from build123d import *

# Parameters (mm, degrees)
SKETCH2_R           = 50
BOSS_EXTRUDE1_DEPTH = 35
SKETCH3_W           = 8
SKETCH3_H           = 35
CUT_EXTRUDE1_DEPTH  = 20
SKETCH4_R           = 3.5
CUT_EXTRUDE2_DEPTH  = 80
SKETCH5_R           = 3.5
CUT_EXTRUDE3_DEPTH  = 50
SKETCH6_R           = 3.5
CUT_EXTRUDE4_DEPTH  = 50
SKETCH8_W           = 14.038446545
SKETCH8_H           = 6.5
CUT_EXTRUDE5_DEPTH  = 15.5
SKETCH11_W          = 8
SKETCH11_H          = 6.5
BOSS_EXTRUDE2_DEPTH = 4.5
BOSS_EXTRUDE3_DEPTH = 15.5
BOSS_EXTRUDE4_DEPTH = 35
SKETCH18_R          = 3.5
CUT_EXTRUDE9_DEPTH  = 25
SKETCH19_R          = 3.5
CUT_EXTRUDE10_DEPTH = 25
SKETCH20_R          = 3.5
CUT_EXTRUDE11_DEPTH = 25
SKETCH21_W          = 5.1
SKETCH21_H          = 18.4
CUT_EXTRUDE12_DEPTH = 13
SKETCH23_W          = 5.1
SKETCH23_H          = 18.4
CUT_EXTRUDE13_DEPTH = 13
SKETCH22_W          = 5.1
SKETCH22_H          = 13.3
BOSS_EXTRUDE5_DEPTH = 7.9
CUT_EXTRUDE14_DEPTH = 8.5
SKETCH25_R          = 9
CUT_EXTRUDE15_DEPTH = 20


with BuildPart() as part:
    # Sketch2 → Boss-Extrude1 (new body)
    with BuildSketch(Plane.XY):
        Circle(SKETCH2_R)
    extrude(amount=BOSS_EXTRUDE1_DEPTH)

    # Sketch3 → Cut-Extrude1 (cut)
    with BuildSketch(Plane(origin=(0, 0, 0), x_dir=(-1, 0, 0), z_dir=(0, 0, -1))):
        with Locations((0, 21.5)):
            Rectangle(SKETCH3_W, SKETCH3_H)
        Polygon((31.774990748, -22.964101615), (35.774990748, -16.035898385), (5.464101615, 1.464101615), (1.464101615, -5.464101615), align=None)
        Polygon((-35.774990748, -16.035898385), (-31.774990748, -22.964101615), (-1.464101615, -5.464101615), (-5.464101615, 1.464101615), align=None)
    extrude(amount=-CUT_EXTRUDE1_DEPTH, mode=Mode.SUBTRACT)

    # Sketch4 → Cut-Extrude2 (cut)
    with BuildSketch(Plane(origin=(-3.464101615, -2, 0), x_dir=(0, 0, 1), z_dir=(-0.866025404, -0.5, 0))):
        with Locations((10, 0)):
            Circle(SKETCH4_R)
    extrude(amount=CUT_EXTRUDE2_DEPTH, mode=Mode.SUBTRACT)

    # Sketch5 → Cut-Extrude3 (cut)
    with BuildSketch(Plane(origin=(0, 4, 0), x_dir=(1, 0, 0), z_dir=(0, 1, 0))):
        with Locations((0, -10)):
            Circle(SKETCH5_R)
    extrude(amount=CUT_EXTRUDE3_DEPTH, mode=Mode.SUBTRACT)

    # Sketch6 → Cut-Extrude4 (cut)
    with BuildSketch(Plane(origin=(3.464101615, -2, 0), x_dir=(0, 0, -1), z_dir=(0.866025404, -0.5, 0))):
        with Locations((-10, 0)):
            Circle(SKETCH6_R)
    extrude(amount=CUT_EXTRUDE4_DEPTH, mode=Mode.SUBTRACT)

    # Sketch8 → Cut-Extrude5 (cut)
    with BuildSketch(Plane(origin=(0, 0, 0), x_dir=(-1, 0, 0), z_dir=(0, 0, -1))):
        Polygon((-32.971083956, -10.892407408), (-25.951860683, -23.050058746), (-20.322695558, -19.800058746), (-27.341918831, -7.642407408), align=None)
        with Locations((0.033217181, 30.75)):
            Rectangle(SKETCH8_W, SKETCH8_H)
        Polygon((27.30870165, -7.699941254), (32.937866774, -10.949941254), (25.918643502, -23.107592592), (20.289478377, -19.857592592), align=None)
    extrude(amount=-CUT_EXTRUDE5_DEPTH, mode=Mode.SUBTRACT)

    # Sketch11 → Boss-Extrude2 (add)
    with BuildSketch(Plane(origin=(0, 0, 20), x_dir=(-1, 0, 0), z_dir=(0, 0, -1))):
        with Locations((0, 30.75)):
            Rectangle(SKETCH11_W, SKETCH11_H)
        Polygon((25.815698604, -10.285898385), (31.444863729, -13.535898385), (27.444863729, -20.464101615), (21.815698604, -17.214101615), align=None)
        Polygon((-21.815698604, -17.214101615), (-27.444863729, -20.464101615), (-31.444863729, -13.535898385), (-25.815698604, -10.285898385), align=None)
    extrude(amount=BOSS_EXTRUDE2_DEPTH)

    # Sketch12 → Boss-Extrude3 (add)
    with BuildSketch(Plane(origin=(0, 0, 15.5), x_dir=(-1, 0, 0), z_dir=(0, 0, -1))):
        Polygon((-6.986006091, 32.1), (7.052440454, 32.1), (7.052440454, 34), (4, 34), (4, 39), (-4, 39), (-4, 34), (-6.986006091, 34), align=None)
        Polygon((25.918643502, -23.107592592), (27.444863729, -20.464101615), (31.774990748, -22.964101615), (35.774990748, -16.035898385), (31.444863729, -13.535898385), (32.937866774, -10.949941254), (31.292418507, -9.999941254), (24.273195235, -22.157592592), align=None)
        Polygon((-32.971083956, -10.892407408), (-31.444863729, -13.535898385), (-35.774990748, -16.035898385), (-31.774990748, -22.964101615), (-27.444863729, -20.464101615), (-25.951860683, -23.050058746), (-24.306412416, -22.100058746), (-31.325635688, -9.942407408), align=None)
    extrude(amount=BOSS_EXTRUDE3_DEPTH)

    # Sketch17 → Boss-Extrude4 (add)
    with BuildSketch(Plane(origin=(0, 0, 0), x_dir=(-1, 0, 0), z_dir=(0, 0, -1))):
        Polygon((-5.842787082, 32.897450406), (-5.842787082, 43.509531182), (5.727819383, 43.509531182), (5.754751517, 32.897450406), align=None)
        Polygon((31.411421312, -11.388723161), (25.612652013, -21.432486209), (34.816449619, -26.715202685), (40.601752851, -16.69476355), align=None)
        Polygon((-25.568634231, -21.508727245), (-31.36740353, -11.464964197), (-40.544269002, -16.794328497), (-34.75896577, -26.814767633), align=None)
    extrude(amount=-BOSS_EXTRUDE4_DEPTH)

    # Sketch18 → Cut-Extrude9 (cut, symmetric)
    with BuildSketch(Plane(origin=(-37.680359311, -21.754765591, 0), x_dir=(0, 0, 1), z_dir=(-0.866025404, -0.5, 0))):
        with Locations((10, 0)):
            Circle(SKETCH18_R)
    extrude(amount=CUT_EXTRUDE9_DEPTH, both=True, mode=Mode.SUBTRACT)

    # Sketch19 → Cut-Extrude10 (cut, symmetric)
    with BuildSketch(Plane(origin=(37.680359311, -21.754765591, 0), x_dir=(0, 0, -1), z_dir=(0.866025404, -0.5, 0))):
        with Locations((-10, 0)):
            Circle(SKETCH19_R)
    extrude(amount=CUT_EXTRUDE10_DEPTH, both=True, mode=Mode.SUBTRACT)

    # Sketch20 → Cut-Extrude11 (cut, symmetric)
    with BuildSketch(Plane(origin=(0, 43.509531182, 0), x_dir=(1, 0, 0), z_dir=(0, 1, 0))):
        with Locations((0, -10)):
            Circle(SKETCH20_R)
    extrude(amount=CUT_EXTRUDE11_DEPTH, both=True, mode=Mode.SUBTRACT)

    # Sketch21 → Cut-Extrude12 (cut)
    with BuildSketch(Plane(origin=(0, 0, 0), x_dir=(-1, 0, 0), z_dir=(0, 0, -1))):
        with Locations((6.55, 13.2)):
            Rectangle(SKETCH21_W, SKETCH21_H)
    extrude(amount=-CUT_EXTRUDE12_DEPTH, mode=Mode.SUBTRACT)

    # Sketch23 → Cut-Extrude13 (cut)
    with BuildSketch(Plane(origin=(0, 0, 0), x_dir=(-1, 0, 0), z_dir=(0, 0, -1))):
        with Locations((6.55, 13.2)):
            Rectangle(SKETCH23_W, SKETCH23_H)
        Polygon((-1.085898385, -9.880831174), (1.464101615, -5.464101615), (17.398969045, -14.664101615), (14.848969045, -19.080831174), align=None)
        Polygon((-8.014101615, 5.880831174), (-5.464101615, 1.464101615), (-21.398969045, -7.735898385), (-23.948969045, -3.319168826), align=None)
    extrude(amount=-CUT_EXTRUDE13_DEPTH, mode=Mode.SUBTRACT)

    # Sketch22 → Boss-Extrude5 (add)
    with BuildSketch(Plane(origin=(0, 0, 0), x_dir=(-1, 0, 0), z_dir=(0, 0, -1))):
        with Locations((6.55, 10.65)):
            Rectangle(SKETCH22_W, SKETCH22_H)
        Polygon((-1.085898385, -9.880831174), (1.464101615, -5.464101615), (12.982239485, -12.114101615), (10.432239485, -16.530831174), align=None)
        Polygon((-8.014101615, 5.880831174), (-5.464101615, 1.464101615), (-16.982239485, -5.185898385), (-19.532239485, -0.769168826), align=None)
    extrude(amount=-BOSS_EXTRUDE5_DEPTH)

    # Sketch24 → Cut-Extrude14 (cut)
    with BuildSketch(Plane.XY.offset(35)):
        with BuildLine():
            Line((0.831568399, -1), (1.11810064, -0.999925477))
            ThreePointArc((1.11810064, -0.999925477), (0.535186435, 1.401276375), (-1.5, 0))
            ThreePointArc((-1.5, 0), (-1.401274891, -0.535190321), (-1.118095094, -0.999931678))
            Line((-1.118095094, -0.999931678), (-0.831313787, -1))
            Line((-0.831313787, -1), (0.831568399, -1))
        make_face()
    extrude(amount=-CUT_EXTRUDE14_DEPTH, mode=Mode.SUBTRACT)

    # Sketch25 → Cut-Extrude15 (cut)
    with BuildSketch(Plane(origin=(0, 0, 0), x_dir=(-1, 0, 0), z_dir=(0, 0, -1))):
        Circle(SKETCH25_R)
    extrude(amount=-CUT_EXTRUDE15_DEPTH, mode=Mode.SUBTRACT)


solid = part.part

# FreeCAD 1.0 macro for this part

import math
import FreeCAD as App
import Part
import Sketcher

V = App.Vector
Q = App.Units.Quantity

doc = App.newDocument("Part")
body = doc.addObject("PartDesign::Body", "Body")

# Sketch on XY plane
sketch1 = body.newObject("Sketcher::SketchObject", "Sketch")
sketch1.AttachmentSupport = (doc.getObject("XY_Plane"), [""])
sketch1.MapMode = "FlatFace"
sketch1.addGeometry(Part.Circle(V(0, 0, 0), V(0, 0, 1), 50), False)
sketch1.addConstraint(Sketcher.Constraint("Coincident", 0, 3, -1, 1))
sketch1.addConstraint(Sketcher.Constraint("Diameter", 0, Q("100 mm")))
pad1 = body.newObject("PartDesign::Pad", "Pad")
pad1.Profile = sketch1
pad1.Length = 35

# Sketch on XY plane
sketch2 = body.newObject("Sketcher::SketchObject", "Sketch001")
sketch2.AttachmentSupport = (doc.getObject("XY_Plane"), [""])
sketch2.MapMode = "FlatFace"
sketch2.addGeometry(Part.LineSegment(V(4, 39, 0), V(4, 4, 0)), False)
sketch2.addGeometry(Part.LineSegment(V(4, 4, 0), V(-4, 4, 0)), False)
sketch2.addGeometry(Part.LineSegment(V(-4, 4, 0), V(-4, 39, 0)), False)
sketch2.addGeometry(Part.LineSegment(V(-4, 39, 0), V(4, 39, 0)), False)
sketch2.addGeometry(Part.LineSegment(V(-32, -23, 0), V(-36, -16, 0)), False)
sketch2.addGeometry(Part.LineSegment(V(-36, -16, 0), V(-5, 1, 0)), False)
sketch2.addGeometry(Part.LineSegment(V(-5, 1, 0), V(-1, -5, 0)), False)
sketch2.addGeometry(Part.LineSegment(V(-1, -5, 0), V(-32, -23, 0)), False)
sketch2.addGeometry(Part.LineSegment(V(36, -16, 0), V(32, -23, 0)), False)
sketch2.addGeometry(Part.LineSegment(V(32, -23, 0), V(1, -5, 0)), False)
sketch2.addGeometry(Part.LineSegment(V(1, -5, 0), V(5, 1, 0)), False)
sketch2.addGeometry(Part.LineSegment(V(5, 1, 0), V(36, -16, 0)), False)
sketch2.addConstraint(Sketcher.Constraint("Coincident", 0, 2, 1, 1))
sketch2.addConstraint(Sketcher.Constraint("Coincident", 1, 2, 2, 1))
sketch2.addConstraint(Sketcher.Constraint("Coincident", 2, 2, 3, 1))
sketch2.addConstraint(Sketcher.Constraint("Coincident", 3, 2, 0, 1))
sketch2.addConstraint(Sketcher.Constraint("Coincident", 4, 2, 5, 1))
sketch2.addConstraint(Sketcher.Constraint("Coincident", 5, 2, 6, 1))
sketch2.addConstraint(Sketcher.Constraint("Coincident", 6, 2, 7, 1))
sketch2.addConstraint(Sketcher.Constraint("Coincident", 7, 2, 4, 1))
sketch2.addConstraint(Sketcher.Constraint("Coincident", 8, 2, 9, 1))
sketch2.addConstraint(Sketcher.Constraint("Coincident", 9, 2, 10, 1))
sketch2.addConstraint(Sketcher.Constraint("Coincident", 10, 2, 11, 1))
sketch2.addConstraint(Sketcher.Constraint("Coincident", 11, 2, 8, 1))
sketch2.addConstraint(Sketcher.Constraint("Vertical", 0))
sketch2.addConstraint(Sketcher.Constraint("Horizontal", 1))
sketch2.addConstraint(Sketcher.Constraint("Vertical", 2))
sketch2.addConstraint(Sketcher.Constraint("Horizontal", 3))
sketch2.addConstraint(Sketcher.Constraint("Symmetric", 7, 2, 8, 2, -2))
sketch2.addConstraint(Sketcher.Constraint("Symmetric", 6, 2, 9, 2, -2))
sketch2.addConstraint(Sketcher.Constraint("Symmetric", 5, 2, 10, 2, -2))
sketch2.addConstraint(Sketcher.Constraint("Symmetric", 4, 2, 11, 2, -2))
sketch2.addConstraint(Sketcher.Constraint("Perpendicular", 4, 5))
sketch2.addConstraint(Sketcher.Constraint("Perpendicular", 5, 6))
sketch2.addConstraint(Sketcher.Constraint("Perpendicular", 6, 7))
sketch2.addConstraint(Sketcher.Constraint("DistanceX", 1, 2, 1, 1, Q("8 mm")))
sketch2.addConstraint(Sketcher.Constraint("DistanceY", 0, 2, 0, 1, Q("35 mm")))
sketch2.addConstraint(Sketcher.Constraint("Angle", 4, Q("120 deg")))
sketch2.addConstraint(Sketcher.Constraint("Distance", 4, Q("8 mm")))
sketch2.addConstraint(Sketcher.Constraint("Distance", 5, Q("35 mm")))
sketch2.addConstraint(Sketcher.Constraint("DistanceX", -1, 1, 0, 2, Q("4 mm")))
sketch2.addConstraint(Sketcher.Constraint("DistanceY", -1, 1, 0, 2, Q("4 mm")))
sketch2.addConstraint(Sketcher.Constraint("DistanceY", 4, 2, -1, 1, Q("16.035898 mm")))
sketch2.addConstraint(Sketcher.Constraint("DistanceX", 5, 2, -1, 1, Q("5.464102 mm")))
pocket1 = body.newObject("PartDesign::Pocket", "Pocket")
pocket1.Profile = sketch2
pocket1.Length = 20
pocket1.Reversed = True

# Sketch on an angled plane
sketch3 = body.newObject("Sketcher::SketchObject", "Sketch002")
sketch3.Placement = App.Placement(V(-3.464102, -2, 0), App.Rotation(V(0, 0, 1), V(-0.5, 0.866025404, 0), V(-0.866025404, -0.5, 0), "ZXY"))
sketch3.addGeometry(Part.Circle(V(10, 0, 0), V(0, 0, 1), 3.5), False)
sketch3.addConstraint(Sketcher.Constraint("PointOnObject", 0, 3, -1))
sketch3.addConstraint(Sketcher.Constraint("Diameter", 0, Q("7 mm")))
sketch3.addConstraint(Sketcher.Constraint("DistanceX", -1, 1, 0, 3, Q("10 mm")))
pocket2 = body.newObject("PartDesign::Pocket", "Pocket001")
pocket2.Profile = sketch3
pocket2.Length = 80
pocket2.Reversed = True

# Sketch on XZ plane
sketch4 = body.newObject("Sketcher::SketchObject", "Sketch003")
sketch4.AttachmentSupport = (doc.getObject("XZ_Plane"), [""])
sketch4.MapMode = "FlatFace"
sketch4.AttachmentOffset = App.Placement(V(0, 0, -4), App.Rotation())
sketch4.addGeometry(Part.Circle(V(0, 10, 0), V(0, 0, 1), 3.5), False)
sketch4.addConstraint(Sketcher.Constraint("PointOnObject", 0, 3, -2))
sketch4.addConstraint(Sketcher.Constraint("Diameter", 0, Q("7 mm")))
sketch4.addConstraint(Sketcher.Constraint("DistanceY", -1, 1, 0, 3, Q("10 mm")))
pocket3 = body.newObject("PartDesign::Pocket", "Pocket002")
pocket3.Profile = sketch4
pocket3.Length = 50

# Sketch on an angled plane
sketch5 = body.newObject("Sketcher::SketchObject", "Sketch004")
sketch5.Placement = App.Placement(V(3.464102, -2, 0), App.Rotation(V(0, 0, -1), V(0.5, 0.866025404, 0), V(0.866025404, -0.5, 0), "ZXY"))
sketch5.addGeometry(Part.Circle(V(-10, 0, 0), V(0, 0, 1), 3.5), False)
sketch5.addConstraint(Sketcher.Constraint("PointOnObject", 0, 3, -1))
sketch5.addConstraint(Sketcher.Constraint("Diameter", 0, Q("7 mm")))
sketch5.addConstraint(Sketcher.Constraint("DistanceX", 0, 3, -1, 1, Q("10 mm")))
pocket4 = body.newObject("PartDesign::Pocket", "Pocket003")
pocket4.Profile = sketch5
pocket4.Length = 50
pocket4.Reversed = True

# Sketch on XY plane
sketch6 = body.newObject("Sketcher::SketchObject", "Sketch005")
sketch6.AttachmentSupport = (doc.getObject("XY_Plane"), [""])
sketch6.MapMode = "FlatFace"
sketch6.addGeometry(Part.LineSegment(V(33, -11, 0), V(26, -23, 0)), False)
sketch6.addGeometry(Part.LineSegment(V(26, -23, 0), V(20, -20, 0)), False)
sketch6.addGeometry(Part.LineSegment(V(20, -20, 0), V(27, -8, 0)), False)
sketch6.addGeometry(Part.LineSegment(V(27, -8, 0), V(33, -11, 0)), False)
sketch6.addGeometry(Part.LineSegment(V(7, 34, 0), V(7, 28, 0)), False)
sketch6.addGeometry(Part.LineSegment(V(7, 28, 0), V(-7, 28, 0)), False)
sketch6.addGeometry(Part.LineSegment(V(-7, 28, 0), V(-7, 34, 0)), False)
sketch6.addGeometry(Part.LineSegment(V(-7, 34, 0), V(7, 34, 0)), False)
sketch6.addGeometry(Part.LineSegment(V(-33, -11, 0), V(-27, -8, 0)), False)
sketch6.addGeometry(Part.LineSegment(V(-27, -8, 0), V(-20, -20, 0)), False)
sketch6.addGeometry(Part.LineSegment(V(-20, -20, 0), V(-26, -23, 0)), False)
sketch6.addGeometry(Part.LineSegment(V(-26, -23, 0), V(-33, -11, 0)), False)
sketch6.addConstraint(Sketcher.Constraint("Coincident", 0, 2, 1, 1))
sketch6.addConstraint(Sketcher.Constraint("Coincident", 1, 2, 2, 1))
sketch6.addConstraint(Sketcher.Constraint("Coincident", 2, 2, 3, 1))
sketch6.addConstraint(Sketcher.Constraint("Coincident", 3, 2, 0, 1))
sketch6.addConstraint(Sketcher.Constraint("Coincident", 4, 2, 5, 1))
sketch6.addConstraint(Sketcher.Constraint("Coincident", 5, 2, 6, 1))
sketch6.addConstraint(Sketcher.Constraint("Coincident", 6, 2, 7, 1))
sketch6.addConstraint(Sketcher.Constraint("Coincident", 7, 2, 4, 1))
sketch6.addConstraint(Sketcher.Constraint("Coincident", 8, 2, 9, 1))
sketch6.addConstraint(Sketcher.Constraint("Coincident", 9, 2, 10, 1))
sketch6.addConstraint(Sketcher.Constraint("Coincident", 10, 2, 11, 1))
sketch6.addConstraint(Sketcher.Constraint("Coincident", 11, 2, 8, 1))
sketch6.addConstraint(Sketcher.Constraint("Vertical", 4))
sketch6.addConstraint(Sketcher.Constraint("Horizontal", 5))
sketch6.addConstraint(Sketcher.Constraint("Vertical", 6))
sketch6.addConstraint(Sketcher.Constraint("Horizontal", 7))
sketch6.addConstraint(Sketcher.Constraint("Perpendicular", 0, 1))
sketch6.addConstraint(Sketcher.Constraint("Perpendicular", 1, 2))
sketch6.addConstraint(Sketcher.Constraint("Perpendicular", 2, 3))
sketch6.addConstraint(Sketcher.Constraint("Perpendicular", 8, 9))
sketch6.addConstraint(Sketcher.Constraint("Perpendicular", 9, 10))
sketch6.addConstraint(Sketcher.Constraint("Perpendicular", 10, 11))
sketch6.addConstraint(Sketcher.Constraint("Equal", 3, 8))
sketch6.addConstraint(Sketcher.Constraint("Equal", 2, 9))
sketch6.addConstraint(Sketcher.Constraint("Angle", 0, Q("-120 deg")))
sketch6.addConstraint(Sketcher.Constraint("Angle", 8, Q("30 deg")))
sketch6.addConstraint(Sketcher.Constraint("DistanceY", 4, 2, 4, 1, Q("6.5 mm")))
sketch6.addConstraint(Sketcher.Constraint("DistanceY", -1, 1, 6, 2, Q("34 mm")))
sketch6.addConstraint(Sketcher.Constraint("Distance", 1, Q("6.5 mm")))
sketch6.addConstraint(Sketcher.Constraint("DistanceX", 8, 2, -1, 1, Q("27.308702 mm")))
sketch6.addConstraint(Sketcher.Constraint("DistanceX", 5, 2, 0, 2, Q("33.004301 mm")))
sketch6.addConstraint(Sketcher.Constraint("DistanceX", 5, 2, 5, 1, Q("14.038447 mm")))
sketch6.addConstraint(Sketcher.Constraint("DistanceX", -1, 1, 0, 2, Q("25.951861 mm")))
sketch6.addConstraint(Sketcher.Constraint("DistanceY", 0, 2, -1, 1, Q("23.050059 mm")))
sketch6.addConstraint(Sketcher.Constraint("DistanceX", -1, 1, 2, 2, Q("27.341919 mm")))
sketch6.addConstraint(Sketcher.Constraint("DistanceY", 8, 2, -1, 1, Q("7.699941 mm")))
pocket5 = body.newObject("PartDesign::Pocket", "Pocket004")
pocket5.Profile = sketch6
pocket5.Length = 15.5
pocket5.Reversed = True

# Sketch on XY plane
sketch7 = body.newObject("Sketcher::SketchObject", "Sketch006")
sketch7.AttachmentSupport = (doc.getObject("XY_Plane"), [""])
sketch7.MapMode = "FlatFace"
sketch7.AttachmentOffset = App.Placement(V(0, 0, 20), App.Rotation())
sketch7.addGeometry(Part.LineSegment(V(4, 34, 0), V(4, 28, 0)), False)
sketch7.addGeometry(Part.LineSegment(V(4, 28, 0), V(-4, 28, 0)), False)
sketch7.addGeometry(Part.LineSegment(V(-4, 28, 0), V(-4, 34, 0)), False)
sketch7.addGeometry(Part.LineSegment(V(-4, 34, 0), V(4, 34, 0)), False)
sketch7.addGeometry(Part.LineSegment(V(-31, -14, 0), V(-26, -10, 0)), False)
sketch7.addGeometry(Part.LineSegment(V(-26, -10, 0), V(-22, -17, 0)), False)
sketch7.addGeometry(Part.LineSegment(V(-22, -17, 0), V(-27, -20, 0)), False)
sketch7.addGeometry(Part.LineSegment(V(-27, -20, 0), V(-31, -14, 0)), False)
sketch7.addGeometry(Part.LineSegment(V(27, -20, 0), V(22, -17, 0)), False)
sketch7.addGeometry(Part.LineSegment(V(22, -17, 0), V(26, -10, 0)), False)
sketch7.addGeometry(Part.LineSegment(V(26, -10, 0), V(31, -14, 0)), False)
sketch7.addGeometry(Part.LineSegment(V(31, -14, 0), V(27, -20, 0)), False)
sketch7.addConstraint(Sketcher.Constraint("Coincident", 0, 2, 1, 1))
sketch7.addConstraint(Sketcher.Constraint("Coincident", 1, 2, 2, 1))
sketch7.addConstraint(Sketcher.Constraint("Coincident", 2, 2, 3, 1))
sketch7.addConstraint(Sketcher.Constraint("Coincident", 3, 2, 0, 1))
sketch7.addConstraint(Sketcher.Constraint("Coincident", 4, 2, 5, 1))
sketch7.addConstraint(Sketcher.Constraint("Coincident", 5, 2, 6, 1))
sketch7.addConstraint(Sketcher.Constraint("Coincident", 6, 2, 7, 1))
sketch7.addConstraint(Sketcher.Constraint("Coincident", 7, 2, 4, 1))
sketch7.addConstraint(Sketcher.Constraint("Coincident", 8, 2, 9, 1))
sketch7.addConstraint(Sketcher.Constraint("Coincident", 9, 2, 10, 1))
sketch7.addConstraint(Sketcher.Constraint("Coincident", 10, 2, 11, 1))
sketch7.addConstraint(Sketcher.Constraint("Coincident", 11, 2, 8, 1))
sketch7.addConstraint(Sketcher.Constraint("Vertical", 0))
sketch7.addConstraint(Sketcher.Constraint("Horizontal", 1))
sketch7.addConstraint(Sketcher.Constraint("Vertical", 2))
sketch7.addConstraint(Sketcher.Constraint("Horizontal", 3))
sketch7.addConstraint(Sketcher.Constraint("Symmetric", 5, 2, 8, 2, -2))
sketch7.addConstraint(Sketcher.Constraint("Symmetric", 4, 2, 9, 2, -2))
sketch7.addConstraint(Sketcher.Constraint("Symmetric", 7, 2, 10, 2, -2))
sketch7.addConstraint(Sketcher.Constraint("Symmetric", 6, 2, 11, 2, -2))
sketch7.addConstraint(Sketcher.Constraint("Perpendicular", 4, 5))
sketch7.addConstraint(Sketcher.Constraint("Perpendicular", 5, 6))
sketch7.addConstraint(Sketcher.Constraint("Perpendicular", 6, 7))
sketch7.addConstraint(Sketcher.Constraint("DistanceX", 1, 2, 1, 1, Q("8 mm")))
sketch7.addConstraint(Sketcher.Constraint("Angle", 4, Q("30 deg")))
sketch7.addConstraint(Sketcher.Constraint("Distance", 5, Q("8 mm")))
sketch7.addConstraint(Sketcher.Constraint("DistanceY", 0, 2, 0, 1, Q("6.5 mm")))
sketch7.addConstraint(Sketcher.Constraint("DistanceX", -1, 1, 0, 2, Q("4 mm")))
sketch7.addConstraint(Sketcher.Constraint("DistanceY", -1, 1, 2, 2, Q("34 mm")))
sketch7.addConstraint(Sketcher.Constraint("Distance", 4, Q("6.5 mm")))
sketch7.addConstraint(Sketcher.Constraint("DistanceX", 4, 2, -1, 1, Q("25.815699 mm")))
sketch7.addConstraint(Sketcher.Constraint("DistanceY", 4, 2, -1, 1, Q("10.285898 mm")))
pad2 = body.newObject("PartDesign::Pad", "Pad001")
pad2.Profile = sketch7
pad2.Length = 4.5
pad2.Reversed = True

# Sketch on XY plane
sketch8 = body.newObject("Sketcher::SketchObject", "Sketch007")
sketch8.AttachmentSupport = (doc.getObject("XY_Plane"), [""])
sketch8.MapMode = "FlatFace"
sketch8.AttachmentOffset = App.Placement(V(0, 0, 15.5), App.Rotation())
sketch8.addGeometry(Part.LineSegment(V(7, 32.1, 0), V(-7.1, 32.1, 0)), False)
sketch8.addGeometry(Part.LineSegment(V(-7.1, 32.1, 0), V(-7.1, 34, 0)), False)
sketch8.addGeometry(Part.LineSegment(V(-7.1, 34, 0), V(-4, 34, 0)), False)
sketch8.addGeometry(Part.LineSegment(V(-4, 34, 0), V(-4, 39, 0)), False)
sketch8.addGeometry(Part.LineSegment(V(-4, 39, 0), V(4, 39, 0)), False)
sketch8.addGeometry(Part.LineSegment(V(4, 39, 0), V(4, 34, 0)), False)
sketch8.addGeometry(Part.LineSegment(V(4, 34, 0), V(7, 34, 0)), False)
sketch8.addGeometry(Part.LineSegment(V(7, 34, 0), V(7, 32.1, 0)), False)
sketch8.addGeometry(Part.LineSegment(V(-25.9, -23.1, 0), V(-27.4, -20.5, 0)), False)
sketch8.addGeometry(Part.LineSegment(V(-27.4, -20.5, 0), V(-31.8, -23, 0)), False)
sketch8.addGeometry(Part.LineSegment(V(-31.8, -23, 0), V(-35.8, -16, 0)), False)
sketch8.addGeometry(Part.LineSegment(V(-35.8, -16, 0), V(-31.4, -13.5, 0)), False)
sketch8.addGeometry(Part.LineSegment(V(-31.4, -13.5, 0), V(-32.9, -10.9, 0)), False)
sketch8.addGeometry(Part.LineSegment(V(-32.9, -10.9, 0), V(-31.3, -10, 0)), False)
sketch8.addGeometry(Part.LineSegment(V(-31.3, -10, 0), V(-24.3, -22.2, 0)), False)
sketch8.addGeometry(Part.LineSegment(V(-24.3, -22.2, 0), V(-25.9, -23.1, 0)), False)
sketch8.addGeometry(Part.LineSegment(V(33, -10.9, 0), V(31.4, -13.5, 0)), False)
sketch8.addGeometry(Part.LineSegment(V(31.4, -13.5, 0), V(35.8, -16, 0)), False)
sketch8.addGeometry(Part.LineSegment(V(35.8, -16, 0), V(31.8, -23, 0)), False)
sketch8.addGeometry(Part.LineSegment(V(31.8, -23, 0), V(27.4, -20.5, 0)), False)
sketch8.addGeometry(Part.LineSegment(V(27.4, -20.5, 0), V(26, -23.1, 0)), False)
sketch8.addGeometry(Part.LineSegment(V(26, -23.1, 0), V(24.3, -22.1, 0)), False)
sketch8.addGeometry(Part.LineSegment(V(24.3, -22.1, 0), V(31.3, -9.9, 0)), False)
sketch8.addGeometry(Part.LineSegment(V(31.3, -9.9, 0), V(33, -10.9, 0)), False)
sketch8.addConstraint(Sketcher.Constraint("Coincident", 0, 2, 1, 1))
sketch8.addConstraint(Sketcher.Constraint("Coincident", 1, 2, 2, 1))
sketch8.addConstraint(Sketcher.Constraint("Coincident", 2, 2, 3, 1))
sketch8.addConstraint(Sketcher.Constraint("Coincident", 3, 2, 4, 1))
sketch8.addConstraint(Sketcher.Constraint("Coincident", 4, 2, 5, 1))
sketch8.addConstraint(Sketcher.Constraint("Coincident", 5, 2, 6, 1))
sketch8.addConstraint(Sketcher.Constraint("Coincident", 6, 2, 7, 1))
sketch8.addConstraint(Sketcher.Constraint("Coincident", 7, 2, 0, 1))
sketch8.addConstraint(Sketcher.Constraint("Coincident", 8, 2, 9, 1))
sketch8.addConstraint(Sketcher.Constraint("Coincident", 9, 2, 10, 1))
sketch8.addConstraint(Sketcher.Constraint("Coincident", 10, 2, 11, 1))
sketch8.addConstraint(Sketcher.Constraint("Coincident", 11, 2, 12, 1))
sketch8.addConstraint(Sketcher.Constraint("Coincident", 12, 2, 13, 1))
sketch8.addConstraint(Sketcher.Constraint("Coincident", 13, 2, 14, 1))
sketch8.addConstraint(Sketcher.Constraint("Coincident", 14, 2, 15, 1))
sketch8.addConstraint(Sketcher.Constraint("Coincident", 15, 2, 8, 1))
sketch8.addConstraint(Sketcher.Constraint("Coincident", 16, 2, 17, 1))
sketch8.addConstraint(Sketcher.Constraint("Coincident", 17, 2, 18, 1))
sketch8.addConstraint(Sketcher.Constraint("Coincident", 18, 2, 19, 1))
sketch8.addConstraint(Sketcher.Constraint("Coincident", 19, 2, 20, 1))
sketch8.addConstraint(Sketcher.Constraint("Coincident", 20, 2, 21, 1))
sketch8.addConstraint(Sketcher.Constraint("Coincident", 21, 2, 22, 1))
sketch8.addConstraint(Sketcher.Constraint("Coincident", 22, 2, 23, 1))
sketch8.addConstraint(Sketcher.Constraint("Coincident", 23, 2, 16, 1))
sketch8.addConstraint(Sketcher.Constraint("Horizontal", 0))
sketch8.addConstraint(Sketcher.Constraint("Vertical", 1))
sketch8.addConstraint(Sketcher.Constraint("Horizontal", 2))
sketch8.addConstraint(Sketcher.Constraint("Vertical", 3))
sketch8.addConstraint(Sketcher.Constraint("Horizontal", 4))
sketch8.addConstraint(Sketcher.Constraint("Vertical", 5))
sketch8.addConstraint(Sketcher.Constraint("Horizontal", 6))
sketch8.addConstraint(Sketcher.Constraint("Vertical", 7))
sketch8.addConstraint(Sketcher.Constraint("Symmetric", 2, 2, 5, 2, -2))
sketch8.addConstraint(Sketcher.Constraint("Symmetric", 11, 2, 16, 2, -2))
sketch8.addConstraint(Sketcher.Constraint("Symmetric", 10, 2, 17, 2, -2))
sketch8.addConstraint(Sketcher.Constraint("Symmetric", 9, 2, 18, 2, -2))
sketch8.addConstraint(Sketcher.Constraint("Symmetric", 8, 2, 19, 2, -2))
sketch8.addConstraint(Sketcher.Constraint("Perpendicular", 8, 9))
sketch8.addConstraint(Sketcher.Constraint("Perpendicular", 9, 10))
sketch8.addConstraint(Sketcher.Constraint("Perpendicular", 10, 11))
sketch8.addConstraint(Sketcher.Constraint("Perpendicular", 11, 12))
sketch8.addConstraint(Sketcher.Constraint("Perpendicular", 12, 13))
sketch8.addConstraint(Sketcher.Constraint("Perpendicular", 13, 14))
sketch8.addConstraint(Sketcher.Constraint("Perpendicular", 14, 15))
sketch8.addConstraint(Sketcher.Constraint("Perpendicular", 16, 17))
sketch8.addConstraint(Sketcher.Constraint("Perpendicular", 19, 20))
sketch8.addConstraint(Sketcher.Constraint("Perpendicular", 20, 21))
sketch8.addConstraint(Sketcher.Constraint("Perpendicular", 21, 22))
sketch8.addConstraint(Sketcher.Constraint("Perpendicular", 22, 23))
sketch8.addConstraint(Sketcher.Constraint("Equal", 9, 11))
sketch8.addConstraint(Sketcher.Constraint("Equal", 8, 16))
sketch8.addConstraint(Sketcher.Constraint("Equal", 12, 20))
sketch8.addConstraint(Sketcher.Constraint("Equal", 15, 21))
sketch8.addConstraint(Sketcher.Constraint("DistanceX", 4, 1, 4, 2, Q("8 mm")))
sketch8.addConstraint(Sketcher.Constraint("DistanceY", 3, 1, 3, 2, Q("5 mm")))
sketch8.addConstraint(Sketcher.Constraint("Angle", 8, Q("120 deg")))
sketch8.addConstraint(Sketcher.Constraint("Distance", 9, Q("5 mm")))
sketch8.addConstraint(Sketcher.Constraint("Distance", 10, Q("8 mm")))
sketch8.addConstraint(Sketcher.Constraint("DistanceY", 1, 1, 1, 2, Q("1.9 mm")))
sketch8.addConstraint(Sketcher.Constraint("DistanceY", -1, 1, 1, 2, Q("34 mm")))
sketch8.addConstraint(Sketcher.Constraint("Distance", 13, Q("1.9 mm")))
sketch8.addConstraint(Sketcher.Constraint("DistanceX", 2, 1, 2, 2, Q("3.05244 mm")))
sketch8.addConstraint(Sketcher.Constraint("DistanceY", 8, 2, -1, 1, Q("20.464102 mm")))
sketch8.addConstraint(Sketcher.Constraint("Distance", 8, Q("3.05244 mm")))
sketch8.addConstraint(Sketcher.Constraint("DistanceX", 0, 2, 0, 1, Q("14.038447 mm")))
sketch8.addConstraint(Sketcher.Constraint("DistanceX", 9, 2, -1, 1, Q("31.774991 mm")))
sketch8.addConstraint(Sketcher.Constraint("DistanceY", 12, 2, -1, 1, Q("10.949941 mm")))
pad3 = body.newObject("PartDesign::Pad", "Pad002")
pad3.Profile = sketch8
pad3.Length = 15.5
pad3.Reversed = True

# Sketch on XY plane
sketch9 = body.newObject("Sketcher::SketchObject", "Sketch008")
sketch9.AttachmentSupport = (doc.getObject("XY_Plane"), [""])
sketch9.MapMode = "FlatFace"
sketch9.addGeometry(Part.LineSegment(V(5.842787, 43.509531, 0), V(5.842787, 32.89745, 0)), False)
sketch9.addGeometry(Part.LineSegment(V(5.842787, 32.89745, 0), V(-5.754752, 32.89745, 0)), False)
sketch9.addGeometry(Part.LineSegment(V(-5.754752, 32.89745, 0), V(-5.727819, 43.509531, 0)), False)
sketch9.addGeometry(Part.LineSegment(V(-5.727819, 43.509531, 0), V(5.842787, 43.509531, 0)), False)
sketch9.addGeometry(Part.LineSegment(V(-31.411421, -11.388723, 0), V(-25.612652, -21.432486, 0)), False)
sketch9.addGeometry(Part.LineSegment(V(-25.612652, -21.432486, 0), V(-34.81645, -26.715203, 0)), False)
sketch9.addGeometry(Part.LineSegment(V(-34.81645, -26.715203, 0), V(-40.601753, -16.694764, 0)), False)
sketch9.addGeometry(Part.LineSegment(V(-40.601753, -16.694764, 0), V(-31.411421, -11.388723, 0)), False)
sketch9.addGeometry(Part.LineSegment(V(25.568634, -21.508727, 0), V(31.367404, -11.464964, 0)), False)
sketch9.addGeometry(Part.LineSegment(V(31.367404, -11.464964, 0), V(40.544269, -16.794328, 0)), False)
sketch9.addGeometry(Part.LineSegment(V(40.544269, -16.794328, 0), V(34.758966, -26.814768, 0)), False)
sketch9.addGeometry(Part.LineSegment(V(34.758966, -26.814768, 0), V(25.568634, -21.508727, 0)), False)
sketch9.addConstraint(Sketcher.Constraint("Coincident", 0, 2, 1, 1))
sketch9.addConstraint(Sketcher.Constraint("Coincident", 1, 2, 2, 1))
sketch9.addConstraint(Sketcher.Constraint("Coincident", 2, 2, 3, 1))
sketch9.addConstraint(Sketcher.Constraint("Coincident", 3, 2, 0, 1))
sketch9.addConstraint(Sketcher.Constraint("Coincident", 4, 2, 5, 1))
sketch9.addConstraint(Sketcher.Constraint("Coincident", 5, 2, 6, 1))
sketch9.addConstraint(Sketcher.Constraint("Coincident", 6, 2, 7, 1))
sketch9.addConstraint(Sketcher.Constraint("Coincident", 7, 2, 4, 1))
sketch9.addConstraint(Sketcher.Constraint("Coincident", 8, 2, 9, 1))
sketch9.addConstraint(Sketcher.Constraint("Coincident", 9, 2, 10, 1))
sketch9.addConstraint(Sketcher.Constraint("Coincident", 10, 2, 11, 1))
sketch9.addConstraint(Sketcher.Constraint("Coincident", 11, 2, 8, 1))
sketch9.addConstraint(Sketcher.Constraint("Vertical", 0))
sketch9.addConstraint(Sketcher.Constraint("Horizontal", 1))
sketch9.addConstraint(Sketcher.Constraint("Horizontal", 3))
sketch9.addConstraint(Sketcher.Constraint("DistanceX", 6, 2, 1, 2, Q("34.847001 mm")))
sketch9.addConstraint(Sketcher.Constraint("DistanceX", 1, 2, 1, 1, Q("11.597539 mm")))
sketch9.addConstraint(Sketcher.Constraint("DistanceY", 0, 2, 0, 1, Q("10.612081 mm")))
sketch9.addConstraint(Sketcher.Constraint("DistanceX", 4, 2, 1, 2, Q("19.8579 mm")))
sketch9.addConstraint(Sketcher.Constraint("DistanceX", 5, 2, 1, 2, Q("29.061698 mm")))
sketch9.addConstraint(Sketcher.Constraint("DistanceY", 11, 2, 9, 2, Q("4.714399 mm")))
sketch9.addConstraint(Sketcher.Constraint("Distance", 4, Q("11.597539 mm")))
sketch9.addConstraint(Sketcher.Constraint("Distance", 7, Q("10.612081 mm")))
sketch9.addConstraint(Sketcher.Constraint("Distance", 8, Q("11.597539 mm")))
sketch9.addConstraint(Sketcher.Constraint("Distance", 11, Q("10.612081 mm")))
sketch9.addConstraint(Sketcher.Constraint("DistanceX", 3, 1, 3, 2, Q("11.570606 mm")))
sketch9.addConstraint(Sketcher.Constraint("DistanceY", -1, 1, 0, 2, Q("32.89745 mm")))
sketch9.addConstraint(Sketcher.Constraint("DistanceX", 1, 2, -1, 1, Q("5.754752 mm")))
sketch9.addConstraint(Sketcher.Constraint("DistanceX", 7, 2, -1, 1, Q("31.411421 mm")))
sketch9.addConstraint(Sketcher.Constraint("DistanceX", -1, 1, 9, 2, Q("40.544269 mm")))
sketch9.addConstraint(Sketcher.Constraint("DistanceY", 9, 2, -1, 1, Q("16.794328 mm")))
sketch9.addConstraint(Sketcher.Constraint("DistanceY", 5, 2, 6, 2, Q("10.020439 mm")))
sketch9.addConstraint(Sketcher.Constraint("DistanceY", 8, 2, 7, 2, Q("0.076241 mm")))
sketch9.addConstraint(Sketcher.Constraint("DistanceY", 10, 2, 9, 2, Q("10.020439 mm")))
sketch9.addConstraint(Sketcher.Constraint("DistanceY", 10, 2, 4, 2, Q("5.382281 mm")))
sketch9.addConstraint(Sketcher.Constraint("DistanceX", 0, 2, 10, 2, Q("28.916179 mm")))
pad4 = body.newObject("PartDesign::Pad", "Pad003")
pad4.Profile = sketch9
pad4.Length = 35

# Sketch on an angled plane
sketch10 = body.newObject("Sketcher::SketchObject", "Sketch009")
sketch10.Placement = App.Placement(V(-37.680359, -21.754766, 0), App.Rotation(V(0, 0, 1), V(-0.5, 0.866025404, 0), V(-0.866025404, -0.5, 0), "ZXY"))
sketch10.addGeometry(Part.Circle(V(10, 0, 0), V(0, 0, 1), 3.5), False)
sketch10.addConstraint(Sketcher.Constraint("PointOnObject", 0, 3, -1))
sketch10.addConstraint(Sketcher.Constraint("Diameter", 0, Q("7 mm")))
sketch10.addConstraint(Sketcher.Constraint("DistanceX", -1, 1, 0, 3, Q("10 mm")))
pocket6 = body.newObject("PartDesign::Pocket", "Pocket005")
pocket6.Profile = sketch10
pocket6.Length = 50
pocket6.Midplane = True

# Sketch on an angled plane
sketch11 = body.newObject("Sketcher::SketchObject", "Sketch010")
sketch11.Placement = App.Placement(V(37.680359, -21.754766, 0), App.Rotation(V(0, 0, -1), V(0.5, 0.866025404, 0), V(0.866025404, -0.5, 0), "ZXY"))
sketch11.addGeometry(Part.Circle(V(-10, 0, 0), V(0, 0, 1), 3.5), False)
sketch11.addConstraint(Sketcher.Constraint("PointOnObject", 0, 3, -1))
sketch11.addConstraint(Sketcher.Constraint("Diameter", 0, Q("7 mm")))
sketch11.addConstraint(Sketcher.Constraint("DistanceX", 0, 3, -1, 1, Q("10 mm")))
pocket7 = body.newObject("PartDesign::Pocket", "Pocket006")
pocket7.Profile = sketch11
pocket7.Length = 50
pocket7.Midplane = True

# Sketch on XZ plane
sketch12 = body.newObject("Sketcher::SketchObject", "Sketch011")
sketch12.AttachmentSupport = (doc.getObject("XZ_Plane"), [""])
sketch12.MapMode = "FlatFace"
sketch12.AttachmentOffset = App.Placement(V(0, 0, -43.509531), App.Rotation())
sketch12.addGeometry(Part.Circle(V(0, 10, 0), V(0, 0, 1), 3.5), False)
sketch12.addConstraint(Sketcher.Constraint("PointOnObject", 0, 3, -2))
sketch12.addConstraint(Sketcher.Constraint("Diameter", 0, Q("7 mm")))
sketch12.addConstraint(Sketcher.Constraint("DistanceY", -1, 1, 0, 3, Q("10 mm")))
pocket8 = body.newObject("PartDesign::Pocket", "Pocket007")
pocket8.Profile = sketch12
pocket8.Length = 50
pocket8.Midplane = True

# Sketch on XY plane
sketch13 = body.newObject("Sketcher::SketchObject", "Sketch012")
sketch13.AttachmentSupport = (doc.getObject("XY_Plane"), [""])
sketch13.MapMode = "FlatFace"
sketch13.addGeometry(Part.LineSegment(V(-4, 22, 0), V(-4, 4, 0)), False)
sketch13.addGeometry(Part.LineSegment(V(-4, 4, 0), V(-9, 4, 0)), False)
sketch13.addGeometry(Part.LineSegment(V(-9, 4, 0), V(-9, 22, 0)), False)
sketch13.addGeometry(Part.LineSegment(V(-9, 22, 0), V(-4, 22, 0)), False)
sketch13.addConstraint(Sketcher.Constraint("Coincident", 0, 2, 1, 1))
sketch13.addConstraint(Sketcher.Constraint("Coincident", 1, 2, 2, 1))
sketch13.addConstraint(Sketcher.Constraint("Coincident", 2, 2, 3, 1))
sketch13.addConstraint(Sketcher.Constraint("Coincident", 3, 2, 0, 1))
sketch13.addConstraint(Sketcher.Constraint("Vertical", 0))
sketch13.addConstraint(Sketcher.Constraint("Horizontal", 1))
sketch13.addConstraint(Sketcher.Constraint("Vertical", 2))
sketch13.addConstraint(Sketcher.Constraint("Horizontal", 3))
sketch13.addConstraint(Sketcher.Constraint("DistanceX", 1, 2, 1, 1, Q("5.1 mm")))
sketch13.addConstraint(Sketcher.Constraint("DistanceY", 0, 2, 0, 1, Q("18.4 mm")))
sketch13.addConstraint(Sketcher.Constraint("DistanceX", 0, 2, -1, 1, Q("4 mm")))
sketch13.addConstraint(Sketcher.Constraint("DistanceY", -1, 1, 0, 2, Q("4 mm")))
pocket9 = body.newObject("PartDesign::Pocket", "Pocket008")
pocket9.Profile = sketch13
pocket9.Length = 13
pocket9.Reversed = True

# Sketch on XY plane
sketch14 = body.newObject("Sketcher::SketchObject", "Sketch013")
sketch14.AttachmentSupport = (doc.getObject("XY_Plane"), [""])
sketch14.MapMode = "FlatFace"
sketch14.addGeometry(Part.LineSegment(V(-4, 22, 0), V(-4, 4, 0)), False)
sketch14.addGeometry(Part.LineSegment(V(-4, 4, 0), V(-9, 4, 0)), False)
sketch14.addGeometry(Part.LineSegment(V(-9, 4, 0), V(-9, 22, 0)), False)
sketch14.addGeometry(Part.LineSegment(V(-9, 22, 0), V(-4, 22, 0)), False)
sketch14.addGeometry(Part.LineSegment(V(-1, -5, 0), V(1, -10, 0)), False)
sketch14.addGeometry(Part.LineSegment(V(1, -10, 0), V(-15, -19, 0)), False)
sketch14.addGeometry(Part.LineSegment(V(-15, -19, 0), V(-17, -15, 0)), False)
sketch14.addGeometry(Part.LineSegment(V(-17, -15, 0), V(-1, -5, 0)), False)
sketch14.addGeometry(Part.LineSegment(V(5, 1, 0), V(8, 6, 0)), False)
sketch14.addGeometry(Part.LineSegment(V(8, 6, 0), V(24, -3, 0)), False)
sketch14.addGeometry(Part.LineSegment(V(24, -3, 0), V(21, -8, 0)), False)
sketch14.addGeometry(Part.LineSegment(V(21, -8, 0), V(5, 1, 0)), False)
sketch14.addConstraint(Sketcher.Constraint("Coincident", 0, 2, 1, 1))
sketch14.addConstraint(Sketcher.Constraint("Coincident", 1, 2, 2, 1))
sketch14.addConstraint(Sketcher.Constraint("Coincident", 2, 2, 3, 1))
sketch14.addConstraint(Sketcher.Constraint("Coincident", 3, 2, 0, 1))
sketch14.addConstraint(Sketcher.Constraint("Coincident", 4, 2, 5, 1))
sketch14.addConstraint(Sketcher.Constraint("Coincident", 5, 2, 6, 1))
sketch14.addConstraint(Sketcher.Constraint("Coincident", 6, 2, 7, 1))
sketch14.addConstraint(Sketcher.Constraint("Coincident", 7, 2, 4, 1))
sketch14.addConstraint(Sketcher.Constraint("Coincident", 8, 2, 9, 1))
sketch14.addConstraint(Sketcher.Constraint("Coincident", 9, 2, 10, 1))
sketch14.addConstraint(Sketcher.Constraint("Coincident", 10, 2, 11, 1))
sketch14.addConstraint(Sketcher.Constraint("Coincident", 11, 2, 8, 1))
sketch14.addConstraint(Sketcher.Constraint("Vertical", 0))
sketch14.addConstraint(Sketcher.Constraint("Horizontal", 1))
sketch14.addConstraint(Sketcher.Constraint("Vertical", 2))
sketch14.addConstraint(Sketcher.Constraint("Horizontal", 3))
sketch14.addConstraint(Sketcher.Constraint("Perpendicular", 4, 5))
sketch14.addConstraint(Sketcher.Constraint("Perpendicular", 5, 6))
sketch14.addConstraint(Sketcher.Constraint("Perpendicular", 6, 7))
sketch14.addConstraint(Sketcher.Constraint("Perpendicular", 8, 9))
sketch14.addConstraint(Sketcher.Constraint("Perpendicular", 9, 10))
sketch14.addConstraint(Sketcher.Constraint("Perpendicular", 10, 11))
sketch14.addConstraint(Sketcher.Constraint("Equal", 6, 8))
sketch14.addConstraint(Sketcher.Constraint("Equal", 7, 9))
sketch14.addConstraint(Sketcher.Constraint("Angle", 4, Q("-60 deg")))
sketch14.addConstraint(Sketcher.Constraint("Angle", 8, Q("60 deg")))
sketch14.addConstraint(Sketcher.Constraint("DistanceX", 1, 2, 1, 1, Q("5.1 mm")))
sketch14.addConstraint(Sketcher.Constraint("DistanceY", 0, 2, 0, 1, Q("18.4 mm")))
sketch14.addConstraint(Sketcher.Constraint("DistanceX", 0, 2, -1, 1, Q("4 mm")))
sketch14.addConstraint(Sketcher.Constraint("DistanceY", -1, 1, 0, 2, Q("4 mm")))
sketch14.addConstraint(Sketcher.Constraint("Distance", 4, Q("5.1 mm")))
sketch14.addConstraint(Sketcher.Constraint("Distance", 5, Q("18.4 mm")))
sketch14.addConstraint(Sketcher.Constraint("DistanceX", -1, 1, 4, 2, Q("1.085898 mm")))
sketch14.addConstraint(Sketcher.Constraint("DistanceY", 6, 2, -1, 1, Q("14.664102 mm")))
sketch14.addConstraint(Sketcher.Constraint("DistanceX", -1, 1, 8, 2, Q("8.014102 mm")))
sketch14.addConstraint(Sketcher.Constraint("DistanceY", 10, 2, -1, 1, Q("7.735898 mm")))
pocket10 = body.newObject("PartDesign::Pocket", "Pocket009")
pocket10.Profile = sketch14
pocket10.Length = 13
pocket10.Reversed = True

# Sketch on XY plane
sketch15 = body.newObject("Sketcher::SketchObject", "Sketch014")
sketch15.AttachmentSupport = (doc.getObject("XY_Plane"), [""])
sketch15.MapMode = "FlatFace"
sketch15.addGeometry(Part.LineSegment(V(-4, 17, 0), V(-4, 4, 0)), False)
sketch15.addGeometry(Part.LineSegment(V(-4, 4, 0), V(-9, 4, 0)), False)
sketch15.addGeometry(Part.LineSegment(V(-9, 4, 0), V(-9, 17, 0)), False)
sketch15.addGeometry(Part.LineSegment(V(-9, 17, 0), V(-4, 17, 0)), False)
sketch15.addGeometry(Part.LineSegment(V(-1, -5, 0), V(1, -10, 0)), False)
sketch15.addGeometry(Part.LineSegment(V(1, -10, 0), V(-10, -17, 0)), False)
sketch15.addGeometry(Part.LineSegment(V(-10, -17, 0), V(-13, -12, 0)), False)
sketch15.addGeometry(Part.LineSegment(V(-13, -12, 0), V(-1, -5, 0)), False)
sketch15.addGeometry(Part.LineSegment(V(5, 1, 0), V(8, 6, 0)), False)
sketch15.addGeometry(Part.LineSegment(V(8, 6, 0), V(20, -1, 0)), False)
sketch15.addGeometry(Part.LineSegment(V(20, -1, 0), V(17, -5, 0)), False)
sketch15.addGeometry(Part.LineSegment(V(17, -5, 0), V(5, 1, 0)), False)
sketch15.addConstraint(Sketcher.Constraint("Coincident", 0, 2, 1, 1))
sketch15.addConstraint(Sketcher.Constraint("Coincident", 1, 2, 2, 1))
sketch15.addConstraint(Sketcher.Constraint("Coincident", 2, 2, 3, 1))
sketch15.addConstraint(Sketcher.Constraint("Coincident", 3, 2, 0, 1))
sketch15.addConstraint(Sketcher.Constraint("Coincident", 4, 2, 5, 1))
sketch15.addConstraint(Sketcher.Constraint("Coincident", 5, 2, 6, 1))
sketch15.addConstraint(Sketcher.Constraint("Coincident", 6, 2, 7, 1))
sketch15.addConstraint(Sketcher.Constraint("Coincident", 7, 2, 4, 1))
sketch15.addConstraint(Sketcher.Constraint("Coincident", 8, 2, 9, 1))
sketch15.addConstraint(Sketcher.Constraint("Coincident", 9, 2, 10, 1))
sketch15.addConstraint(Sketcher.Constraint("Coincident", 10, 2, 11, 1))
sketch15.addConstraint(Sketcher.Constraint("Coincident", 11, 2, 8, 1))
sketch15.addConstraint(Sketcher.Constraint("Vertical", 0))
sketch15.addConstraint(Sketcher.Constraint("Horizontal", 1))
sketch15.addConstraint(Sketcher.Constraint("Vertical", 2))
sketch15.addConstraint(Sketcher.Constraint("Horizontal", 3))
sketch15.addConstraint(Sketcher.Constraint("Perpendicular", 4, 5))
sketch15.addConstraint(Sketcher.Constraint("Perpendicular", 5, 6))
sketch15.addConstraint(Sketcher.Constraint("Perpendicular", 6, 7))
sketch15.addConstraint(Sketcher.Constraint("Perpendicular", 8, 9))
sketch15.addConstraint(Sketcher.Constraint("Perpendicular", 9, 10))
sketch15.addConstraint(Sketcher.Constraint("Perpendicular", 10, 11))
sketch15.addConstraint(Sketcher.Constraint("Equal", 6, 8))
sketch15.addConstraint(Sketcher.Constraint("Equal", 7, 9))
sketch15.addConstraint(Sketcher.Constraint("Angle", 4, Q("-60 deg")))
sketch15.addConstraint(Sketcher.Constraint("Angle", 8, Q("60 deg")))
sketch15.addConstraint(Sketcher.Constraint("DistanceX", 1, 2, 1, 1, Q("5.1 mm")))
sketch15.addConstraint(Sketcher.Constraint("DistanceY", 0, 2, 0, 1, Q("13.3 mm")))
sketch15.addConstraint(Sketcher.Constraint("DistanceX", 0, 2, -1, 1, Q("4 mm")))
sketch15.addConstraint(Sketcher.Constraint("DistanceY", -1, 1, 0, 2, Q("4 mm")))
sketch15.addConstraint(Sketcher.Constraint("Distance", 4, Q("5.1 mm")))
sketch15.addConstraint(Sketcher.Constraint("Distance", 5, Q("13.3 mm")))
sketch15.addConstraint(Sketcher.Constraint("DistanceX", -1, 1, 4, 2, Q("1.085898 mm")))
sketch15.addConstraint(Sketcher.Constraint("DistanceY", 6, 2, -1, 1, Q("12.114102 mm")))
sketch15.addConstraint(Sketcher.Constraint("DistanceX", -1, 1, 8, 2, Q("8.014102 mm")))
sketch15.addConstraint(Sketcher.Constraint("DistanceY", 10, 2, -1, 1, Q("5.185898 mm")))
pad5 = body.newObject("PartDesign::Pad", "Pad004")
pad5.Profile = sketch15
pad5.Length = 7.9

# Sketch on XY plane
sketch16 = body.newObject("Sketcher::SketchObject", "Sketch015")
sketch16.AttachmentSupport = (doc.getObject("XY_Plane"), [""])
sketch16.MapMode = "FlatFace"
sketch16.AttachmentOffset = App.Placement(V(0, 0, 35), App.Rotation())
sketch16.addGeometry(Part.LineSegment(V(0.83, -1, 0), V(1.12, -1, 0)), False)
sketch16.addGeometry(Part.ArcOfCircle(Part.Circle(V(0, 0, 0), V(0, 0, 1), 1.5), math.radians(-42), math.radians(180)), False)
sketch16.addGeometry(Part.ArcOfCircle(Part.Circle(V(0, 0, 0), V(0, 0, 1), 1.5), math.radians(180), math.radians(222)), False)
sketch16.addGeometry(Part.LineSegment(V(-1.12, -1, 0), V(-0.83, -1, 0)), False)
sketch16.addGeometry(Part.LineSegment(V(-0.83, -1, 0), V(0.83, -1, 0)), False)
sketch16.addConstraint(Sketcher.Constraint("Coincident", 0, 2, 1, 1))
sketch16.addConstraint(Sketcher.Constraint("Tangent", 1, 2, 2, 1))
sketch16.addConstraint(Sketcher.Constraint("Coincident", 2, 2, 3, 1))
sketch16.addConstraint(Sketcher.Constraint("Coincident", 3, 2, 4, 1))
sketch16.addConstraint(Sketcher.Constraint("Coincident", 4, 2, 0, 1))
sketch16.addConstraint(Sketcher.Constraint("Horizontal", 4))
sketch16.addConstraint(Sketcher.Constraint("Coincident", 1, 3, -1, 1))
sketch16.addConstraint(Sketcher.Constraint("Equal", 1, 2))
sketch16.addConstraint(Sketcher.Constraint("PointOnObject", 1, 2, -1))
sketch16.addConstraint(Sketcher.Constraint("Radius", 1, Q("1.5 mm")))
sketch16.addConstraint(Sketcher.Constraint("DistanceY", 3, 2, -1, 1, Q("1 mm")))
sketch16.addConstraint(Sketcher.Constraint("DistanceX", -1, 1, 0, 2, Q("1.118101 mm")))
sketch16.addConstraint(Sketcher.Constraint("Distance", 3, Q("0.286781 mm")))
sketch16.addConstraint(Sketcher.Constraint("DistanceX", 4, 1, 4, 2, Q("1.662882 mm")))
sketch16.addConstraint(Sketcher.Constraint("DistanceY", 2, 2, -1, 1, Q("0.999932 mm")))
pocket11 = body.newObject("PartDesign::Pocket", "Pocket010")
pocket11.Profile = sketch16
pocket11.Length = 8.5

# Sketch on XY plane
sketch17 = body.newObject("Sketcher::SketchObject", "Sketch016")
sketch17.AttachmentSupport = (doc.getObject("XY_Plane"), [""])
sketch17.MapMode = "FlatFace"
sketch17.addGeometry(Part.Circle(V(0, 0, 0), V(0, 0, 1), 9), False)
sketch17.addConstraint(Sketcher.Constraint("Coincident", 0, 3, -1, 1))
sketch17.addConstraint(Sketcher.Constraint("Diameter", 0, Q("18 mm")))
pocket12 = body.newObject("PartDesign::Pocket", "Pocket011")
pocket12.Profile = sketch17
pocket12.Length = 20
pocket12.Reversed = True

doc.recompute()
